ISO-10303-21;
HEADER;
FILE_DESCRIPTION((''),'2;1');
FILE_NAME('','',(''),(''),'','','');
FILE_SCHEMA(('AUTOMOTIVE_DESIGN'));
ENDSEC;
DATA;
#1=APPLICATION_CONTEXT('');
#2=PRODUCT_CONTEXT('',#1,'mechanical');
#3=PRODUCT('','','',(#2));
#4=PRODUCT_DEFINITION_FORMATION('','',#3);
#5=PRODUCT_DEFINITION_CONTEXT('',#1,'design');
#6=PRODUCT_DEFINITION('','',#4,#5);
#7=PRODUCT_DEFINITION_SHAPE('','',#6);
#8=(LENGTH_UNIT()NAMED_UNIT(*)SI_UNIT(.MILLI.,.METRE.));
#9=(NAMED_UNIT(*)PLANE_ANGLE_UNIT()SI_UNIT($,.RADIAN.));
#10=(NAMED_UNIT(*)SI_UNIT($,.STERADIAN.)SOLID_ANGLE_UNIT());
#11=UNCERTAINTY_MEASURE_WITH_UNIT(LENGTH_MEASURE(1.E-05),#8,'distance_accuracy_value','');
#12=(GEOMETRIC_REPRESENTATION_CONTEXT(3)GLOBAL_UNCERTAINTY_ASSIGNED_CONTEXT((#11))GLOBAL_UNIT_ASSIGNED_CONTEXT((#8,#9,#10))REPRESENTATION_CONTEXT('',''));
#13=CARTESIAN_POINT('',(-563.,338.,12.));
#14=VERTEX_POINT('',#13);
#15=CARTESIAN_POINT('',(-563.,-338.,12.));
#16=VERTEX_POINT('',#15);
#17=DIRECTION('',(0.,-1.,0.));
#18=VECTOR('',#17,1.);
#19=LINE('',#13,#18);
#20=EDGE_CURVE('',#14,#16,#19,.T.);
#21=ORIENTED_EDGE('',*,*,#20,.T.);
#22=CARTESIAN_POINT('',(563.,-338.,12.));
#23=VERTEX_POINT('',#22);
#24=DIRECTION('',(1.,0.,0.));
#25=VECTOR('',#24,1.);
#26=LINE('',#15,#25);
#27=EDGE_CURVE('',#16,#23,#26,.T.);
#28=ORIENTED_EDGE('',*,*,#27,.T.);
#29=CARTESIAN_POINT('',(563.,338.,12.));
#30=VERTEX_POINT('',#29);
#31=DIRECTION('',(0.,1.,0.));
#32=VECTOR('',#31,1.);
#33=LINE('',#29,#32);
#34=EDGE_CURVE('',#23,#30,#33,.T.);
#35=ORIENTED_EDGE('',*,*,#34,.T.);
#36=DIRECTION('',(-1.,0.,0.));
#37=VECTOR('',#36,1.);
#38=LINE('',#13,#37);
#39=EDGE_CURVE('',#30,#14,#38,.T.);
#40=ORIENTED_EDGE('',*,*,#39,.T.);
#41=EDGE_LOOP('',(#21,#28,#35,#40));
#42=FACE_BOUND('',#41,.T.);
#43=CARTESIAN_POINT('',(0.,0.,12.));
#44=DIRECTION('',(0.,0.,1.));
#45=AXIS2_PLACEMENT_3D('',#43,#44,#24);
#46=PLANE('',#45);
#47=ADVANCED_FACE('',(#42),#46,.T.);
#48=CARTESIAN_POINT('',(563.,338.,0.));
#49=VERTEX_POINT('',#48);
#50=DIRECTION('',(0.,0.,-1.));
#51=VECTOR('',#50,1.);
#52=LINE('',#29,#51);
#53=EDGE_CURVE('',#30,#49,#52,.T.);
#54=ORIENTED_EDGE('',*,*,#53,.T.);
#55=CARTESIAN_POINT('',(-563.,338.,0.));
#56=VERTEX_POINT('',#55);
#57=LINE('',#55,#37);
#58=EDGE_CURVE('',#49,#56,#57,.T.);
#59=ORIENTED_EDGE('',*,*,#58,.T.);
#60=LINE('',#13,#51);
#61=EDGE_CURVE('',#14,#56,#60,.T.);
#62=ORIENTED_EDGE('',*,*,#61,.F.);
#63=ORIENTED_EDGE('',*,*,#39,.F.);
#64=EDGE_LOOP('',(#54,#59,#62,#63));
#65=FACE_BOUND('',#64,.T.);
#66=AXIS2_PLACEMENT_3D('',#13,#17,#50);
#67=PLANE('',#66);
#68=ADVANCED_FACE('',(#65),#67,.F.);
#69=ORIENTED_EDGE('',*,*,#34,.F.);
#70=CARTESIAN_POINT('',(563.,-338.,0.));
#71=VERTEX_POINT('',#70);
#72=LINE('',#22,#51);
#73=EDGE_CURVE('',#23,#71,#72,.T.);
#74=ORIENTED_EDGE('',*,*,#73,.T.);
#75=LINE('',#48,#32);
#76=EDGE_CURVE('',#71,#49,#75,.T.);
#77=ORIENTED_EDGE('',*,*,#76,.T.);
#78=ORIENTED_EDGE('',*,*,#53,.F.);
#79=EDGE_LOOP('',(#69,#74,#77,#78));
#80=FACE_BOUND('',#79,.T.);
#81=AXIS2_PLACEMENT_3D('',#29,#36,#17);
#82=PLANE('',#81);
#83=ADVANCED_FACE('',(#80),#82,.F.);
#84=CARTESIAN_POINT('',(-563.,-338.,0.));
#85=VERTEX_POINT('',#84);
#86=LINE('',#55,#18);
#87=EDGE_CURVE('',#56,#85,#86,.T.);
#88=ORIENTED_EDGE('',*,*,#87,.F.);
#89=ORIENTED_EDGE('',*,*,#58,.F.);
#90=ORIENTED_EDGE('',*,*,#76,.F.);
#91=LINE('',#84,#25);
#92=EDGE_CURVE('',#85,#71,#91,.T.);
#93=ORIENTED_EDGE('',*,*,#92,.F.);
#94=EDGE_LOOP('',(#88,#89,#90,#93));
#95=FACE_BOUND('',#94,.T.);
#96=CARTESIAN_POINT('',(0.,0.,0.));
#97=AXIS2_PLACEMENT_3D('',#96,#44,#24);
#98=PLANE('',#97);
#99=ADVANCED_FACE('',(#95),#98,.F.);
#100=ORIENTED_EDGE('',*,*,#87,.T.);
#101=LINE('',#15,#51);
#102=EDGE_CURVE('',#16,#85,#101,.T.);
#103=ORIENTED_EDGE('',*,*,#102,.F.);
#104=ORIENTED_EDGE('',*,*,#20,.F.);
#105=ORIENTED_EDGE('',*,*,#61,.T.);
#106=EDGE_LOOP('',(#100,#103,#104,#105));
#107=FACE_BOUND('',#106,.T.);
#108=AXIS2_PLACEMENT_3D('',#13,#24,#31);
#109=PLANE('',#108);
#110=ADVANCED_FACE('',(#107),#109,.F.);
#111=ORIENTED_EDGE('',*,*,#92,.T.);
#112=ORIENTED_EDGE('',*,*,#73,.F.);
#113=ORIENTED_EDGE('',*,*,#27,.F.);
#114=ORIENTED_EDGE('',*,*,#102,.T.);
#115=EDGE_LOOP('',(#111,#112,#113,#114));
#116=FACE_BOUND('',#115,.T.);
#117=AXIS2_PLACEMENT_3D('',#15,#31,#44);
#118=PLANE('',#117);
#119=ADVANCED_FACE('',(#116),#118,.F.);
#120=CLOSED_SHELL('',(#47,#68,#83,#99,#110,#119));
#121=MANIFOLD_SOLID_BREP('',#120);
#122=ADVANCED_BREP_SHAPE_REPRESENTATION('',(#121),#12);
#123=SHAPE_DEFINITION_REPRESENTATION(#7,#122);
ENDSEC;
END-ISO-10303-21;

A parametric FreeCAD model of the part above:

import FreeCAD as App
import Part
import Sketcher

V = App.Vector
Q = App.Units.Quantity


def add_polygon(sketch, points):
    """Adds a closed chain of lines whose ends are joined by coincident constraints."""
    first, n = sketch.GeometryCount, len(points)
    for a, b in zip(points, points[1:] + points[:1]):
        sketch.addGeometry(Part.LineSegment(App.Vector(*a, 0), App.Vector(*b, 0)), False)
    for i in range(n):
        sketch.addConstraint(Sketcher.Constraint("Coincident", first + i, 2, first + (i + 1) % n, 1))

doc = App.newDocument("Part")
params = doc.addObject("Spreadsheet::Sheet", "Params")
for row, (alias, value) in enumerate([
    ("sketch1_width", "1126 mm"),
    ("sketch1_height", "676 mm"),
    ("pad1_length", "12 mm"),
], start=1):
    params.set(f"A{row}", alias)
    params.set(f"B{row}", "=" + value)
    params.setAlias(f"B{row}", alias)

body = doc.addObject("PartDesign::Body", "Body")

sketch1 = body.newObject("Sketcher::SketchObject", "Sketch")
sketch1.AttachmentSupport = (doc.getObject("XY_Plane"), [""])
sketch1.MapMode = "FlatFace"
add_polygon(sketch1, [(-563, 338), (-563, -338), (563, -338), (563, 338)])
sketch1.addConstraint([
    Sketcher.Constraint("Vertical", 0),
    Sketcher.Constraint("Horizontal", 1),
    Sketcher.Constraint("Vertical", 2),
    Sketcher.Constraint("Horizontal", 3),
    Sketcher.Constraint("Symmetric", 0, 2, 2, 2, -1, 1),
    Sketcher.Constraint("DistanceX", 1, 1, 1, 2, Q("1126 mm")),
    Sketcher.Constraint("DistanceY", 0, 2, 0, 1, Q("676 mm")),
])
sketch1.setExpression("Constraints[9]", "Params.sketch1_width")
sketch1.setExpression("Constraints[10]", "Params.sketch1_height")
pad1 = body.newObject("PartDesign::Pad", "Pad")
pad1.Profile = sketch1
pad1.setExpression("Length", "Params.pad1_length")

doc.recompute()
